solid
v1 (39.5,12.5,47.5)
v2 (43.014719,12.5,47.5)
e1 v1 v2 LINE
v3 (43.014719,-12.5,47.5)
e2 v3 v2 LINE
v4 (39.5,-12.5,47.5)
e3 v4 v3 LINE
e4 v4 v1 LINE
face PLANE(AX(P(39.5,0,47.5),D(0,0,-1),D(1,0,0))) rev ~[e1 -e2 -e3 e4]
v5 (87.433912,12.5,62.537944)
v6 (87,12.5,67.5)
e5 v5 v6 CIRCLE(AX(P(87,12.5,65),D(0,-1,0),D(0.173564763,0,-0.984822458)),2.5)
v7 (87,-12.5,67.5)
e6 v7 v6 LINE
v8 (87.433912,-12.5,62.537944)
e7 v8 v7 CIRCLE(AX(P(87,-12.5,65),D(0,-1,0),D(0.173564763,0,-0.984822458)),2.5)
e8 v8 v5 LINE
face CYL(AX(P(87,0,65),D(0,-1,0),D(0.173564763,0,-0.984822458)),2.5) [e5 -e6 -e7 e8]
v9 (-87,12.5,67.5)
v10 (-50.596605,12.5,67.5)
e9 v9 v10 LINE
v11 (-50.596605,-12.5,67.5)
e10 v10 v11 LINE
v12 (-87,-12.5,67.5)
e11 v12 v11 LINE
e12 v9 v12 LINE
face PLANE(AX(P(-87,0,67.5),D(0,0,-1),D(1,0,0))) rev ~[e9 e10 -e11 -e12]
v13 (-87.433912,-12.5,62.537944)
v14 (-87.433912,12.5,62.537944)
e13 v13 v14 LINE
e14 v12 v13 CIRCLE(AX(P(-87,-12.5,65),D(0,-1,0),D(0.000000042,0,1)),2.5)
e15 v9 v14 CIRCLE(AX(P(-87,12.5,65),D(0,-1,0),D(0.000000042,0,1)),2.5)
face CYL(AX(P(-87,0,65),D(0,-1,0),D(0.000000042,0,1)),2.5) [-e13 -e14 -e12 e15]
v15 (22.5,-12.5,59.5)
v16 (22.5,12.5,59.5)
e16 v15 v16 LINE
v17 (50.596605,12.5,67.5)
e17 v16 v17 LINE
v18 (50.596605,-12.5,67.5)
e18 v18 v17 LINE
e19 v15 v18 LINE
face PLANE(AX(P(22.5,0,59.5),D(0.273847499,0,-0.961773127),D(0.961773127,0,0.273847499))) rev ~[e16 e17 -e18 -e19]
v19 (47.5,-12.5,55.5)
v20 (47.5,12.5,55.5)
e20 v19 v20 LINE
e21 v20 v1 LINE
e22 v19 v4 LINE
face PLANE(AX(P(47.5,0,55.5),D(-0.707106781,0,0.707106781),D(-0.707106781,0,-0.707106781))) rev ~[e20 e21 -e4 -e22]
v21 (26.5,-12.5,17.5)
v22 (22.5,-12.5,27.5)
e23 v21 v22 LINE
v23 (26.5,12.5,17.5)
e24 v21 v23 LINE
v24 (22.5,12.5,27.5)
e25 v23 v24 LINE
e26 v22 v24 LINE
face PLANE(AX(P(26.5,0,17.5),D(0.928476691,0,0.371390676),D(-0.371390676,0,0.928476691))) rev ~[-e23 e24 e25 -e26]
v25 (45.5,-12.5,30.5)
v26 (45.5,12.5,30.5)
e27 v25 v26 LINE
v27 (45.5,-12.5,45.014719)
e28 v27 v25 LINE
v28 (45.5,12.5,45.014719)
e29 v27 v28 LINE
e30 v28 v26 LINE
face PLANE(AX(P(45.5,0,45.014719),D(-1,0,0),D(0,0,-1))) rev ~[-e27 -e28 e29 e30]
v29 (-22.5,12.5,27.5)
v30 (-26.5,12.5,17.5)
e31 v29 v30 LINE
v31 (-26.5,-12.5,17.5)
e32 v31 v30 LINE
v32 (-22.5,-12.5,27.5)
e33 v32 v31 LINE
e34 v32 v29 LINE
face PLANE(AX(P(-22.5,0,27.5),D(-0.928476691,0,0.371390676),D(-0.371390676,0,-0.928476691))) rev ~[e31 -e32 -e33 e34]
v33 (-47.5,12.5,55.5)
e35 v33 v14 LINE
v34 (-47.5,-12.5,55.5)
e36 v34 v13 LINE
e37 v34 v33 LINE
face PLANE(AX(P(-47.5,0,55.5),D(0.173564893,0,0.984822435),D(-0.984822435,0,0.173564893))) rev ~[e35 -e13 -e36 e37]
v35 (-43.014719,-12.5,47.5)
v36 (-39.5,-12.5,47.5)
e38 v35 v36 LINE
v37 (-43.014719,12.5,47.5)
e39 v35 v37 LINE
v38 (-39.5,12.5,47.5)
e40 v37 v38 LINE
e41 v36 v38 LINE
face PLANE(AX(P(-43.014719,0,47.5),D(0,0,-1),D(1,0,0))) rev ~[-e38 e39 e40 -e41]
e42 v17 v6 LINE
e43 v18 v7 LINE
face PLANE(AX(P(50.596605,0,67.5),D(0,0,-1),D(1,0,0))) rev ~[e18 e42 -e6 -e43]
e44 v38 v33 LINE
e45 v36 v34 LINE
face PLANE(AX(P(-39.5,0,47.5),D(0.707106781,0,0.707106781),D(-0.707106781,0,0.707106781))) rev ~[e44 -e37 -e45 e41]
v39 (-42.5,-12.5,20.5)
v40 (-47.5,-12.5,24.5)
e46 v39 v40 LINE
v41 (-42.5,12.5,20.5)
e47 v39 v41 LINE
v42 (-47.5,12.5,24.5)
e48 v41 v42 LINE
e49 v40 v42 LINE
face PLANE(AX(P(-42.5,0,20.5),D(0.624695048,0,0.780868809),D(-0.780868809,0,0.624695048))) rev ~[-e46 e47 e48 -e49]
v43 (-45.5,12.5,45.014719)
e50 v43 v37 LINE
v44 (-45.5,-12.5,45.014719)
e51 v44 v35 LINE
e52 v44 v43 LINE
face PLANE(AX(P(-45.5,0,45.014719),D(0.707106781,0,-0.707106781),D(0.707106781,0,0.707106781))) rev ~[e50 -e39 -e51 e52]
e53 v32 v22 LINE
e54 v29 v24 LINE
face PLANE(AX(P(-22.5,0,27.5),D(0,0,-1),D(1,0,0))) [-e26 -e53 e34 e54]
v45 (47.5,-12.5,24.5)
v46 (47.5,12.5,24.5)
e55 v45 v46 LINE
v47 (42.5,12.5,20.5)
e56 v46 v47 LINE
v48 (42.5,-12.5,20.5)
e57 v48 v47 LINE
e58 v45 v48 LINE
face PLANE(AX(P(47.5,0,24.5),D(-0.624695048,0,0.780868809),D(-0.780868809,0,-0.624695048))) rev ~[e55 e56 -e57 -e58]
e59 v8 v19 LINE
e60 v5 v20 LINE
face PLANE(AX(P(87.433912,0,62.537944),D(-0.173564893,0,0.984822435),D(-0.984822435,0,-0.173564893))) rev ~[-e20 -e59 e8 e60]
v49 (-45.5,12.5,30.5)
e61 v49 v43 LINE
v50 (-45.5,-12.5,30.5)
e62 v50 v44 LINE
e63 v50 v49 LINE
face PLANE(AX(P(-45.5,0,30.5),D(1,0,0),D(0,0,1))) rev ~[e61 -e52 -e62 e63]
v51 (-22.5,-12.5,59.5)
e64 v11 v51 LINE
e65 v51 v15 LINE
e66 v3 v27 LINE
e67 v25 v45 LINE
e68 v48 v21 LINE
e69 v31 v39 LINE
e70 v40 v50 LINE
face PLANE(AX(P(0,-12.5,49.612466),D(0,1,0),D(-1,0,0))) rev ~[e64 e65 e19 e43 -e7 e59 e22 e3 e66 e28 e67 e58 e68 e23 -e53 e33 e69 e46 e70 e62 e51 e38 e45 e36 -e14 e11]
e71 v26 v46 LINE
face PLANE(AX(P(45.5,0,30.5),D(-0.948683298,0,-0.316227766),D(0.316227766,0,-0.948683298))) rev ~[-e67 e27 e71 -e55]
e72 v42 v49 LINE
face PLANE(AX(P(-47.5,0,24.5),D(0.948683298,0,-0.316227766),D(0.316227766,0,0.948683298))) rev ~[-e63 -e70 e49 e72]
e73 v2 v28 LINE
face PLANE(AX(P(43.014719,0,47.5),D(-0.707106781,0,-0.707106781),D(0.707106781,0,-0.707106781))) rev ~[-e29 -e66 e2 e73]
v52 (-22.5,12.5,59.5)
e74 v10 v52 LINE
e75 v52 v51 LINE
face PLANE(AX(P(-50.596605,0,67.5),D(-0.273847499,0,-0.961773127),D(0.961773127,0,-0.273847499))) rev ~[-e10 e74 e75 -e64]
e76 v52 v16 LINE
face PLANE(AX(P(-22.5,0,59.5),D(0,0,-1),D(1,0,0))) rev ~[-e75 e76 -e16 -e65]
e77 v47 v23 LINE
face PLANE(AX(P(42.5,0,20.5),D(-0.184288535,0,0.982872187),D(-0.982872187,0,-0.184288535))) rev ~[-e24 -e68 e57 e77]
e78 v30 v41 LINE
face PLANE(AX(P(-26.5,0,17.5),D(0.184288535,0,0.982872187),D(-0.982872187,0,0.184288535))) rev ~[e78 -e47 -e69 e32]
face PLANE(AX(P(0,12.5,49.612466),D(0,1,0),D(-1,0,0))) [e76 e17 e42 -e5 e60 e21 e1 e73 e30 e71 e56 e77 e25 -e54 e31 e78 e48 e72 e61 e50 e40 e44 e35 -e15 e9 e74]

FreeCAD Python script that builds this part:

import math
import FreeCAD as App
import Part
import Sketcher
from FreeCAD import Vector
Q = App.Units.Quantity

doc = App.newDocument("Part")
body = doc.addObject("PartDesign::Body", "Body")

# Sketch on XZ plane
sketch1 = body.newObject("Sketcher::SketchObject", "Sketch")
sketch1.AttachmentSupport = (doc.getObject("XZ_Plane"), [""])
sketch1.MapMode = "FlatFace"
sketch1.addGeometry(Part.LineSegment(Vector(22.5, 59.5, 0), Vector(-22.5, 59.5, 0)), False)
sketch1.addGeometry(Part.LineSegment(Vector(-22.5, 59.5, 0), Vector(-50.6, 67.5, 0)), False)
sketch1.addGeometry(Part.LineSegment(Vector(-50.6, 67.5, 0), Vector(-87, 67.5, 0)), False)
sketch1.addGeometry(Part.ArcOfCircle(Part.Circle(Vector(-87, 65, 0), Vector(0, 0, 1), 2.5), math.radians(90), math.radians(260)), False)
sketch1.addGeometry(Part.LineSegment(Vector(-87.4, 62.5, 0), Vector(-47.5, 55.5, 0)), False)
sketch1.addGeometry(Part.LineSegment(Vector(-47.5, 55.5, 0), Vector(-39.5, 47.5, 0)), False)
sketch1.addGeometry(Part.LineSegment(Vector(-39.5, 47.5, 0), Vector(-43, 47.5, 0)), False)
sketch1.addGeometry(Part.LineSegment(Vector(-43, 47.5, 0), Vector(-45.5, 45, 0)), False)
sketch1.addGeometry(Part.LineSegment(Vector(-45.5, 45, 0), Vector(-45.5, 30.5, 0)), False)
sketch1.addGeometry(Part.LineSegment(Vector(-45.5, 30.5, 0), Vector(-47.5, 24.5, 0)), False)
sketch1.addGeometry(Part.LineSegment(Vector(-47.5, 24.5, 0), Vector(-42.5, 20.5, 0)), False)
sketch1.addGeometry(Part.LineSegment(Vector(-42.5, 20.5, 0), Vector(-26.5, 17.5, 0)), False)
sketch1.addGeometry(Part.LineSegment(Vector(-26.5, 17.5, 0), Vector(-22.5, 27.5, 0)), False)
sketch1.addGeometry(Part.LineSegment(Vector(-22.5, 27.5, 0), Vector(22.5, 27.5, 0)), False)
sketch1.addGeometry(Part.LineSegment(Vector(22.5, 27.5, 0), Vector(26.5, 17.5, 0)), False)
sketch1.addGeometry(Part.LineSegment(Vector(26.5, 17.5, 0), Vector(42.5, 20.5, 0)), False)
sketch1.addGeometry(Part.LineSegment(Vector(42.5, 20.5, 0), Vector(47.5, 24.5, 0)), False)
sketch1.addGeometry(Part.LineSegment(Vector(47.5, 24.5, 0), Vector(45.5, 30.5, 0)), False)
sketch1.addGeometry(Part.LineSegment(Vector(45.5, 30.5, 0), Vector(45.5, 45, 0)), False)
sketch1.addGeometry(Part.LineSegment(Vector(45.5, 45, 0), Vector(43, 47.5, 0)), False)
sketch1.addGeometry(Part.LineSegment(Vector(43, 47.5, 0), Vector(39.5, 47.5, 0)), False)
sketch1.addGeometry(Part.LineSegment(Vector(39.5, 47.5, 0), Vector(47.5, 55.5, 0)), False)
sketch1.addGeometry(Part.LineSegment(Vector(47.5, 55.5, 0), Vector(87.4, 62.5, 0)), False)
sketch1.addGeometry(Part.ArcOfCircle(Part.Circle(Vector(87, 65, 0), Vector(0, 0, 1), 2.5), math.radians(-80), math.radians(90)), False)
sketch1.addGeometry(Part.LineSegment(Vector(87, 67.5, 0), Vector(50.6, 67.5, 0)), False)
sketch1.addGeometry(Part.LineSegment(Vector(50.6, 67.5, 0), Vector(22.5, 59.5, 0)), False)
sketch1.addConstraint(Sketcher.Constraint("Coincident", 0, 2, 1, 1))
sketch1.addConstraint(Sketcher.Constraint("Coincident", 1, 2, 2, 1))
sketch1.addConstraint(Sketcher.Constraint("Tangent", 2, 2, 3, 1))
sketch1.addConstraint(Sketcher.Constraint("Tangent", 3, 2, 4, 1))
sketch1.addConstraint(Sketcher.Constraint("Coincident", 4, 2, 5, 1))
sketch1.addConstraint(Sketcher.Constraint("Coincident", 5, 2, 6, 1))
sketch1.addConstraint(Sketcher.Constraint("Coincident", 6, 2, 7, 1))
sketch1.addConstraint(Sketcher.Constraint("Coincident", 7, 2, 8, 1))
sketch1.addConstraint(Sketcher.Constraint("Coincident", 8, 2, 9, 1))
sketch1.addConstraint(Sketcher.Constraint("Coincident", 9, 2, 10, 1))
sketch1.addConstraint(Sketcher.Constraint("Coincident", 10, 2, 11, 1))
sketch1.addConstraint(Sketcher.Constraint("Coincident", 11, 2, 12, 1))
sketch1.addConstraint(Sketcher.Constraint("Coincident", 12, 2, 13, 1))
sketch1.addConstraint(Sketcher.Constraint("Coincident", 13, 2, 14, 1))
sketch1.addConstraint(Sketcher.Constraint("Coincident", 14, 2, 15, 1))
sketch1.addConstraint(Sketcher.Constraint("Coincident", 15, 2, 16, 1))
sketch1.addConstraint(Sketcher.Constraint("Coincident", 16, 2, 17, 1))
sketch1.addConstraint(Sketcher.Constraint("Coincident", 17, 2, 18, 1))
sketch1.addConstraint(Sketcher.Constraint("Coincident", 18, 2, 19, 1))
sketch1.addConstraint(Sketcher.Constraint("Coincident", 19, 2, 20, 1))
sketch1.addConstraint(Sketcher.Constraint("Coincident", 20, 2, 21, 1))
sketch1.addConstraint(Sketcher.Constraint("Coincident", 21, 2, 22, 1))
sketch1.addConstraint(Sketcher.Constraint("Tangent", 22, 2, 23, 1))
sketch1.addConstraint(Sketcher.Constraint("Tangent", 23, 2, 24, 1))
sketch1.addConstraint(Sketcher.Constraint("Coincident", 24, 2, 25, 1))
sketch1.addConstraint(Sketcher.Constraint("Coincident", 25, 2, 0, 1))
sketch1.addConstraint(Sketcher.Constraint("Horizontal", 0))
sketch1.addConstraint(Sketcher.Constraint("Horizontal", 2))
sketch1.addConstraint(Sketcher.Constraint("Horizontal", 6))
sketch1.addConstraint(Sketcher.Constraint("Vertical", 8))
sketch1.addConstraint(Sketcher.Constraint("Horizontal", 13))
sketch1.addConstraint(Sketcher.Constraint("Vertical", 18))
sketch1.addConstraint(Sketcher.Constraint("Horizontal", 20))
sketch1.addConstraint(Sketcher.Constraint("Horizontal", 24))
sketch1.addConstraint(Sketcher.Constraint("Equal", 3, 23))
sketch1.addConstraint(Sketcher.Constraint("Symmetric", 3, 3, 23, 3, -2))
sketch1.addConstraint(Sketcher.Constraint("Symmetric", 11, 2, 14, 2, -2))
sketch1.addConstraint(Sketcher.Constraint("Symmetric", 10, 2, 15, 2, -2))
sketch1.addConstraint(Sketcher.Constraint("Symmetric", 9, 2, 16, 2, -2))
sketch1.addConstraint(Sketcher.Constraint("Symmetric", 8, 2, 17, 2, -2))
sketch1.addConstraint(Sketcher.Constraint("Symmetric", 6, 2, 19, 2, -2))
sketch1.addConstraint(Sketcher.Constraint("Symmetric", 4, 2, 21, 2, -2))
sketch1.addConstraint(Sketcher.Constraint("Perpendicular", 5, 7))
sketch1.addConstraint(Sketcher.Constraint("Perpendicular", 7, 19))
sketch1.addConstraint(Sketcher.Constraint("Perpendicular", 19, 21))
sketch1.addConstraint(Sketcher.Constraint("Horizontal", 7, 2, 18, 2))
sketch1.addConstraint(Sketcher.Constraint("Vertical", 4, 2, 9, 2))
sketch1.addConstraint(Sketcher.Constraint("Vertical", 0, 2, 12, 2))
sketch1.addConstraint(Sketcher.Constraint("Vertical", 13, 2, 25, 2))
sketch1.addConstraint(Sketcher.Constraint("Equal", 2, 24))
sketch1.addConstraint(Sketcher.Constraint("Equal", 12, 14))
sketch1.addConstraint(Sketcher.Constraint("Radius", 3, Q("2.5 mm")))
sketch1.addConstraint(Sketcher.Constraint("DistanceX", 0, 2, 0, 1, Q("45 mm")))
sketch1.addConstraint(Sketcher.Constraint("DistanceX", 3, 3, -1, 1, Q("87 mm")))
sketch1.addConstraint(Sketcher.Constraint("DistanceY", -1, 1, 3, 3, Q("65 mm")))
sketch1.addConstraint(Sketcher.Constraint("DistanceY", 0, 2, 1, 2, Q("8 mm")))
sketch1.addConstraint(Sketcher.Constraint("DistanceY", 4, 2, 1, 2, Q("12 mm")))
sketch1.addConstraint(Sketcher.Constraint("DistanceX", 4, 2, 0, 2, Q("25 mm")))
sketch1.addConstraint(Sketcher.Constraint("DistanceX", 4, 2, 5, 2, Q("8 mm")))
sketch1.addConstraint(Sketcher.Constraint("DistanceX", 7, 2, 5, 2, Q("6 mm")))
sketch1.addConstraint(Sketcher.Constraint("DistanceY", 8, 2, 6, 2, Q("17 mm")))
sketch1.addConstraint(Sketcher.Constraint("DistanceY", 9, 2, 8, 2, Q("6 mm")))
sketch1.addConstraint(Sketcher.Constraint("DistanceX", 9, 2, 10, 2, Q("5 mm")))
sketch1.addConstraint(Sketcher.Constraint("DistanceY", 10, 2, 9, 2, Q("4 mm")))
sketch1.addConstraint(Sketcher.Constraint("DistanceX", 10, 2, 11, 2, Q("16 mm")))
sketch1.addConstraint(Sketcher.Constraint("DistanceY", 11, 2, 10, 2, Q("3 mm")))
sketch1.addConstraint(Sketcher.Constraint("DistanceY", 11, 2, 12, 2, Q("10 mm")))
sketch1.addConstraint(Sketcher.Constraint("DistanceX", 6, 2, 6, 1, Q("3.514719 mm")))
sketch1.addConstraint(Sketcher.Constraint("Distance", 1, Q("29.21334 mm")))
pad1 = body.newObject("PartDesign::Pad", "Pad")
pad1.Profile = sketch1
pad1.Length = 25
pad1.Midplane = True

doc.recompute()
